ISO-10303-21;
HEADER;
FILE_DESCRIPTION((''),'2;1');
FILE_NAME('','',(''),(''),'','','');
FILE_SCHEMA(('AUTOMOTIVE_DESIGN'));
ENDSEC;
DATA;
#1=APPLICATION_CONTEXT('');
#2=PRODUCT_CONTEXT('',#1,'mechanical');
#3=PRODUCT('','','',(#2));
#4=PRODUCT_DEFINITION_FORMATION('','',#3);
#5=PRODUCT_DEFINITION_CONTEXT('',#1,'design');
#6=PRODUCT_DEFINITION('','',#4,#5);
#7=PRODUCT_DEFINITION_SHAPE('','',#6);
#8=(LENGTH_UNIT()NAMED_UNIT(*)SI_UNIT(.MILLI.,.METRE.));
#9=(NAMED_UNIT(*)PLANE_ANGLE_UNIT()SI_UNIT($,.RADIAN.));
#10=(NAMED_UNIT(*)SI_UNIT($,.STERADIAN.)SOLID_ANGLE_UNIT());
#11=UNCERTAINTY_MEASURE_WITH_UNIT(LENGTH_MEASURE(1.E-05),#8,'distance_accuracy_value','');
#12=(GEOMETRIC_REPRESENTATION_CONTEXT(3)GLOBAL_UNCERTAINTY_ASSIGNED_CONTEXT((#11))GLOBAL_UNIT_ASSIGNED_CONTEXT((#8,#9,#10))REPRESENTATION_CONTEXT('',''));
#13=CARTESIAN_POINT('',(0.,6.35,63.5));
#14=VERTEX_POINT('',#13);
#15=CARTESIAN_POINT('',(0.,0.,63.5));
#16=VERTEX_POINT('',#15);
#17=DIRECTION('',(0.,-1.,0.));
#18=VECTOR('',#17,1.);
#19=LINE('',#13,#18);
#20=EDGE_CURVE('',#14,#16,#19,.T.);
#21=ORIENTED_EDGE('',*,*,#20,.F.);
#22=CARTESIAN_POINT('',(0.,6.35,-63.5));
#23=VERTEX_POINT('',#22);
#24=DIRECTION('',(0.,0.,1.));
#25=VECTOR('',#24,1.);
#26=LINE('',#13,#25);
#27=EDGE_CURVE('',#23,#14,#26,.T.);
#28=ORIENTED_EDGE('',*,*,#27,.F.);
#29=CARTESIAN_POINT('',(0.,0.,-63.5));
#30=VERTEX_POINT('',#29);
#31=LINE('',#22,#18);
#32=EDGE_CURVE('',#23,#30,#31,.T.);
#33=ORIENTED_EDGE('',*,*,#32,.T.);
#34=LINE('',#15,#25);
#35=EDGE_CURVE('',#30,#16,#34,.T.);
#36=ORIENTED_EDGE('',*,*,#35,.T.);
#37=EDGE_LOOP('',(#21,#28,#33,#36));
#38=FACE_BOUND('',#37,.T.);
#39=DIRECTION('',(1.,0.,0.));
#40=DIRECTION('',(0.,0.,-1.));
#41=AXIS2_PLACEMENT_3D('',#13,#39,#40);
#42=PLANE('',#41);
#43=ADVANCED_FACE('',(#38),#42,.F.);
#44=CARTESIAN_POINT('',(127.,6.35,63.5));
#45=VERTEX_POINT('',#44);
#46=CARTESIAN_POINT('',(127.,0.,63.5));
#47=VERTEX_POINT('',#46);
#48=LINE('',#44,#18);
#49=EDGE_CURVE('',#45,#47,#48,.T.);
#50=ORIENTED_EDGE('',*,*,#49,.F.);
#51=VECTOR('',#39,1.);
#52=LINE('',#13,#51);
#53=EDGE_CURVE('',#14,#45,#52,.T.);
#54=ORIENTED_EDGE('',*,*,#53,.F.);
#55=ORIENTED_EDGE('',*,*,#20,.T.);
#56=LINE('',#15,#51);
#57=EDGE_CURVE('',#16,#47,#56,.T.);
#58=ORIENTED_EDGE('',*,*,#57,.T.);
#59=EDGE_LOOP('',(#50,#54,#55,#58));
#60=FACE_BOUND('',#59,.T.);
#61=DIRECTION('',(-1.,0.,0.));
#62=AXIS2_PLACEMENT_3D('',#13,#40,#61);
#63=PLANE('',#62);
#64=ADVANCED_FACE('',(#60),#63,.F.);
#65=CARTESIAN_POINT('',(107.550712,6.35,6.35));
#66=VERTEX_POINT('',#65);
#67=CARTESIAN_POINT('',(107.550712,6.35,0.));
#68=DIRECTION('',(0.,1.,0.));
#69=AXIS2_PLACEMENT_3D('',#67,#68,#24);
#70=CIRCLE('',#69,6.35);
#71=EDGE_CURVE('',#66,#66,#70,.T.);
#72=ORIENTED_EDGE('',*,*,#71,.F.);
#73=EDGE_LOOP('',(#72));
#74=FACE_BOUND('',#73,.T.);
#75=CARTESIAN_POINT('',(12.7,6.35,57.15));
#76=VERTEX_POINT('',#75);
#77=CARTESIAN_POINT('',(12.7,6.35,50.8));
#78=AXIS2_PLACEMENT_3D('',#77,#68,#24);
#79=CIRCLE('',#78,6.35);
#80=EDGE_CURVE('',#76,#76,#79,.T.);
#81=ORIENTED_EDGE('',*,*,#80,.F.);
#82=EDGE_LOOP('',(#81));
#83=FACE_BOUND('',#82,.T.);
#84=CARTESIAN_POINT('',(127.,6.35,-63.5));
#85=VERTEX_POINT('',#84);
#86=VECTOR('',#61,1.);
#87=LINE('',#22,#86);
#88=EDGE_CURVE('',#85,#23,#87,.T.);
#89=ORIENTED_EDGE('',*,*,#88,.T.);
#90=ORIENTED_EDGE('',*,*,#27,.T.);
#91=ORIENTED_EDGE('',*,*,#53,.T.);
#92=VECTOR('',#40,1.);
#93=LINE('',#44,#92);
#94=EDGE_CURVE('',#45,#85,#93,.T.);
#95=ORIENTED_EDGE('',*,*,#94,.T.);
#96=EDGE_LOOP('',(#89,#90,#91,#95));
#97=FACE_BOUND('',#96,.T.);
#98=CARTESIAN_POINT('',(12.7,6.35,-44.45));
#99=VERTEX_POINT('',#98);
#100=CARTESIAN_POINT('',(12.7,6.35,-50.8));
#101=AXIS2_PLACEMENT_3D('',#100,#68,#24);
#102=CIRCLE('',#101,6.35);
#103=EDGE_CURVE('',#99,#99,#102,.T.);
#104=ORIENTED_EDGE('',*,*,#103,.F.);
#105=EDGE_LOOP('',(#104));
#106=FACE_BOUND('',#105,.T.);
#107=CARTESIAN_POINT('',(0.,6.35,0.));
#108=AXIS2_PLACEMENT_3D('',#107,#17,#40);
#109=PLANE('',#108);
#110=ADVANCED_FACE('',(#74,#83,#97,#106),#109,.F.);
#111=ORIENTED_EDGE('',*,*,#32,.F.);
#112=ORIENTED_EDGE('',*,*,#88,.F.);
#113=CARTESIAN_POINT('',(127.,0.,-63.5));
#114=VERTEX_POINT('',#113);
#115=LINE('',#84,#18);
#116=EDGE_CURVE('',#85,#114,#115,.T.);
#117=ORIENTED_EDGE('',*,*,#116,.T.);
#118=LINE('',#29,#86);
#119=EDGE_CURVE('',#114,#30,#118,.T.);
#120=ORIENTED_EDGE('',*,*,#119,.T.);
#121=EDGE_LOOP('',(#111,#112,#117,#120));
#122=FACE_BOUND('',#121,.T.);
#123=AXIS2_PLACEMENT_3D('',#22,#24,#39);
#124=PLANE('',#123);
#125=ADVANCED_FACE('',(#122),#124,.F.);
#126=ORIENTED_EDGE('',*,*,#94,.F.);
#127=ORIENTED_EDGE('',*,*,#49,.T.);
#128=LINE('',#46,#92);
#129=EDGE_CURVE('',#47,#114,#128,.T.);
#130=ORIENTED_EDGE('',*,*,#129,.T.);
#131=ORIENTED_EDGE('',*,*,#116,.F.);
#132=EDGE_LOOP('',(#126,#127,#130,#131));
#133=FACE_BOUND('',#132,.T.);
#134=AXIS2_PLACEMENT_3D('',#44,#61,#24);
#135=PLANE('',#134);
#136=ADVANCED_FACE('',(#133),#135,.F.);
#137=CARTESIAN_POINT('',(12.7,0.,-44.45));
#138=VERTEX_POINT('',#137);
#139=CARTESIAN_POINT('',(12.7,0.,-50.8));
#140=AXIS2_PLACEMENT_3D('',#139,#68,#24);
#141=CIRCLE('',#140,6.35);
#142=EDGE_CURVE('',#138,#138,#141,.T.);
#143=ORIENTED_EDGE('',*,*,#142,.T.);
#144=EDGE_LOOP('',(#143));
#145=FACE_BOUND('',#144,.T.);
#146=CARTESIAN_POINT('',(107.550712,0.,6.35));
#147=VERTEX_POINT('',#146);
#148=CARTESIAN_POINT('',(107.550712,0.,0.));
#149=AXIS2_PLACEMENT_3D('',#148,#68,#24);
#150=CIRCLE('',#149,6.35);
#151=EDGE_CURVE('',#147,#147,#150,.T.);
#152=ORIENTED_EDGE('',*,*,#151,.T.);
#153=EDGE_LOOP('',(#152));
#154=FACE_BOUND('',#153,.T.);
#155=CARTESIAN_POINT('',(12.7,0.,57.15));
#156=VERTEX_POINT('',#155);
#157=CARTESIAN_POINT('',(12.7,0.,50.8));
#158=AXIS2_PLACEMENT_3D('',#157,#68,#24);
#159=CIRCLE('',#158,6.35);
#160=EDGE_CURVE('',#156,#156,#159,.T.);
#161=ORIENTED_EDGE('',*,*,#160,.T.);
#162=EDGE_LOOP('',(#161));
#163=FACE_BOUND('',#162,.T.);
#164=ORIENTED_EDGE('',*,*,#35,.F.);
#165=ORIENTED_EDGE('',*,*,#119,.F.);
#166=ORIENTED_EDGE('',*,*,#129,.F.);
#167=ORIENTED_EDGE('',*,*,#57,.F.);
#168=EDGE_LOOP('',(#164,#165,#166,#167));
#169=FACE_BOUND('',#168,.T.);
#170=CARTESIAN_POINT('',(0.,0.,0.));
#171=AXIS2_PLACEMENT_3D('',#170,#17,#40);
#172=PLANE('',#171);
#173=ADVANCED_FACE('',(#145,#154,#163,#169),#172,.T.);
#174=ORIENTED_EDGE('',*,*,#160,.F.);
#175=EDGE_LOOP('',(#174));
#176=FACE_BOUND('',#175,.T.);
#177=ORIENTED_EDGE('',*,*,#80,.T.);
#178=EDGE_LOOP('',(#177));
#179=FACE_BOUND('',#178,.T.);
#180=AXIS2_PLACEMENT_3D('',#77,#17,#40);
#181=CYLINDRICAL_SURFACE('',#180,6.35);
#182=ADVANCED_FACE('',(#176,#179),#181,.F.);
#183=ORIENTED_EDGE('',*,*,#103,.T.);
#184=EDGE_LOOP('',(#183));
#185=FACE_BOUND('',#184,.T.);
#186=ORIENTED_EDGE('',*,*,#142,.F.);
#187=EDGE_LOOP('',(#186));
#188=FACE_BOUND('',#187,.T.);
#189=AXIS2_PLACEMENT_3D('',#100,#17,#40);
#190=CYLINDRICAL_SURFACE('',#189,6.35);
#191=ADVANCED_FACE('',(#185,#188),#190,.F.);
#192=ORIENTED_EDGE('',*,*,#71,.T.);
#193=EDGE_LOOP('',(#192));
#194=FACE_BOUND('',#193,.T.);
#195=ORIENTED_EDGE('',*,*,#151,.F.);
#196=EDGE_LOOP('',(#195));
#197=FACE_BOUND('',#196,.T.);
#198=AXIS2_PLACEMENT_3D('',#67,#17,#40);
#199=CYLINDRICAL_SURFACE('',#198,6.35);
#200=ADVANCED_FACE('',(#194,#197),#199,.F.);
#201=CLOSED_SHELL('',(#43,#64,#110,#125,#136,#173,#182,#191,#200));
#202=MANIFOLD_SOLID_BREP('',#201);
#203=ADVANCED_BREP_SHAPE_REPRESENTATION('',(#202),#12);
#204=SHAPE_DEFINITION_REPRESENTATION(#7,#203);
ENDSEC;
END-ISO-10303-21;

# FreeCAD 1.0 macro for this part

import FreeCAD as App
import Part
import Sketcher
Q = App.Units.Quantity


def add_polygon(sketch, points):
    """Adds a closed chain of lines whose ends are joined by coincident constraints."""
    first, n = sketch.GeometryCount, len(points)
    for a, b in zip(points, points[1:] + points[:1]):
        sketch.addGeometry(Part.LineSegment(App.Vector(*a, 0), App.Vector(*b, 0)), False)
    for i in range(n):
        sketch.addConstraint(Sketcher.Constraint("Coincident", first + i, 2, first + (i + 1) % n, 1))

doc = App.newDocument("Part")
body = doc.addObject("PartDesign::Body", "Body")

# Sketch on XZ plane
sketch1 = doc.addObject("Sketcher::SketchObject", "Sketch")
body.addObject(sketch1)
sketch1.AttachmentSupport = (doc.XZ_Plane, [""])
sketch1.MapMode = "FlatFace"
add_polygon(sketch1, [(0, -64), (0, 64), (127, 64), (127, -64)])  # lines 0-3
sketch1.addGeometry(Part.Circle(App.Vector(13, 51, 0), App.Vector(0, 0, 1), 6), False)  # 4
sketch1.addGeometry(Part.Circle(App.Vector(13, -51, 0), App.Vector(0, 0, 1), 6), False)  # 5
sketch1.addGeometry(Part.Circle(App.Vector(108, 0, 0), App.Vector(0, 0, 1), 6), False)  # 6
sketch1.addConstraint([
    Sketcher.Constraint("Vertical", 0),
    Sketcher.Constraint("Horizontal", 1),
    Sketcher.Constraint("Vertical", 2),
    Sketcher.Constraint("Horizontal", 3),
    Sketcher.Constraint("Equal", 4, 5),
    Sketcher.Constraint("Equal", 5, 6),
    Sketcher.Constraint("Symmetric", 0, 2, 3, 2, -1, 1),
    Sketcher.Constraint("Symmetric", 4, 3, 5, 3, -1),
    Sketcher.Constraint("PointOnObject", 6, 3, -1),
    Sketcher.Constraint("Equal", 3, 0),
    Sketcher.Constraint("Diameter", 4, Q("0.5 in")),
    Sketcher.Constraint("DistanceX", 1, 1, 1, 2, Q("5 in")),
    Sketcher.Constraint("DistanceY", -1, 1, 4, 3, Q("2 in")),
    Sketcher.Constraint("DistanceX", -1, 1, 4, 3, Q("0.5 in")),
    Sketcher.Constraint("DistanceX", 4, 3, 6, 3, 94.850712),
])
pad1 = doc.addObject("PartDesign::Pad", "Pad")
body.addObject(pad1)
pad1.Profile = sketch1
pad1.Length = Q("0.25 in")
pad1.Reversed = True

doc.recompute()
